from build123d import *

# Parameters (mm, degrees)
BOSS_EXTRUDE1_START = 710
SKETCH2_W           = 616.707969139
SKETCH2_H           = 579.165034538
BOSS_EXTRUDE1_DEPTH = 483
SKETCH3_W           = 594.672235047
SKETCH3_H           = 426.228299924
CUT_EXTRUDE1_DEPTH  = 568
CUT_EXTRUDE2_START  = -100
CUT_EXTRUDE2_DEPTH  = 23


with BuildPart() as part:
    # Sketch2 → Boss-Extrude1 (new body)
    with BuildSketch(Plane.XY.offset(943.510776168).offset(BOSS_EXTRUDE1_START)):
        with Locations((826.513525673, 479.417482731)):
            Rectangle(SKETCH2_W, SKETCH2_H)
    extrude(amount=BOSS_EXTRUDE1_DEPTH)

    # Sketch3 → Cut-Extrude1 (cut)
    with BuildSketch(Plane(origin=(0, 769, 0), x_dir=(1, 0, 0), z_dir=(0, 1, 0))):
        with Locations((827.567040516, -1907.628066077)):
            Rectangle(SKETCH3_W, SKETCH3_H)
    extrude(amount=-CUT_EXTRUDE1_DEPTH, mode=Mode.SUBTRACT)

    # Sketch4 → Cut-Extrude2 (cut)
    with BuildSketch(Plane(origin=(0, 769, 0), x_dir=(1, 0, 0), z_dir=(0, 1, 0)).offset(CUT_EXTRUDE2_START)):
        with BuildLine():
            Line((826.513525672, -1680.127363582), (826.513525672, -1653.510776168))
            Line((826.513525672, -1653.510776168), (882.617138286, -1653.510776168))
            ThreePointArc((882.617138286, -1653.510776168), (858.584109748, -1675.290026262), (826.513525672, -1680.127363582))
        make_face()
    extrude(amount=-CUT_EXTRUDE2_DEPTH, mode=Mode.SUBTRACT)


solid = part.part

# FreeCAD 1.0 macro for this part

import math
import FreeCAD as App
import Part
import Sketcher

V = App.Vector


def add_polygon(sketch, points):
    """Adds a closed chain of lines whose ends are joined by coincident constraints."""
    first, n = sketch.GeometryCount, len(points)
    for a, b in zip(points, points[1:] + points[:1]):
        sketch.addGeometry(Part.LineSegment(App.Vector(*a, 0), App.Vector(*b, 0)), False)
    for i in range(n):
        sketch.addConstraint(Sketcher.Constraint("Coincident", first + i, 2, first + (i + 1) % n, 1))

doc = App.newDocument("Part")
body = doc.addObject("PartDesign::Body", "Body")

sketch1 = body.newObject("Sketcher::SketchObject", "Sketch")
sketch1.AttachmentSupport = (doc.getObject("XY_Plane"), [""])
sketch1.MapMode = "FlatFace"
sketch1.AttachmentOffset = App.Placement(V(0, 0, 1653.510776), App.Rotation())
add_polygon(sketch1, [(518.159541, 769), (518.159541, 189.834965), (1134.86751, 189.834965), (1134.86751, 769)])
sketch1.addConstraint([
    Sketcher.Constraint("Vertical", 0),
    Sketcher.Constraint("Horizontal", 1),
    Sketcher.Constraint("Vertical", 2),
    Sketcher.Constraint("Horizontal", 3),
    Sketcher.Constraint("DistanceY", -1, 1, 2, 2, 769.0),
    Sketcher.Constraint("DistanceX", 1, 1, 1, 2, 616.707969),
    Sketcher.Constraint("DistanceY", 0, 2, 0, 1, 579.165035),
    Sketcher.Constraint("DistanceX", -1, 1, 0, 2, 518.159541),
])
pad1 = body.newObject("PartDesign::Pad", "Pad")
pad1.Profile = sketch1
pad1.Length = 483

sketch2 = body.newObject("Sketcher::SketchObject", "Sketch001")
sketch2.AttachmentSupport = (doc.getObject("XZ_Plane"), [""])
sketch2.MapMode = "FlatFace"
sketch2.AttachmentOffset = App.Placement(V(0, 0, -769), App.Rotation())
add_polygon(sketch2, [(530.230923, 1694.513916), (530.230923, 2120.742216), (1124.903158, 2120.742216), (1124.903158, 1694.513916)])
sketch2.addConstraint([
    Sketcher.Constraint("Vertical", 0),
    Sketcher.Constraint("Horizontal", 1),
    Sketcher.Constraint("Vertical", 2),
    Sketcher.Constraint("Horizontal", 3),
    Sketcher.Constraint("DistanceY", 0, 1, 0, 2, 426.2283),
    Sketcher.Constraint("DistanceX", 1, 1, 1, 2, 594.672235),
    Sketcher.Constraint("DistanceX", -1, 1, 1, 2, 1124.903158),
    Sketcher.Constraint("DistanceY", -1, 1, 0, 2, 2120.742216),
])
pocket1 = body.newObject("PartDesign::Pocket", "Pocket")
pocket1.Profile = sketch2
pocket1.Length = 568
pocket1.Reversed = True

sketch3 = body.newObject("Sketcher::SketchObject", "Sketch002")
sketch3.AttachmentSupport = (doc.getObject("XZ_Plane"), [""])
sketch3.MapMode = "FlatFace"
sketch3.AttachmentOffset = App.Placement(V(0, 0, -669), App.Rotation())
sketch3.addGeometry([
    Part.LineSegment(V(826.513526, 1653.510776, 0), V(826.513526, 1680.127364, 0)),
    Part.ArcOfCircle(Part.Circle(V(834.53933, 1624.607382, 0), V(0, 0, 1), 56.097076), math.radians(31.013423), math.radians(98.225528)),
    Part.LineSegment(V(882.617138, 1653.510776, 0), V(826.513526, 1653.510776, 0)),
], False)
sketch3.addConstraint([
    Sketcher.Constraint("Coincident", 0, 2, 1, 2),
    Sketcher.Constraint("Coincident", 1, 1, 2, 1),
    Sketcher.Constraint("Coincident", 2, 2, 0, 1),
    Sketcher.Constraint("Vertical", 0),
    Sketcher.Constraint("Horizontal", 2),
    Sketcher.Constraint("Radius", 1, 56.097076),
    Sketcher.Constraint("DistanceX", 2, 2, 2, 1, 56.103613),
    Sketcher.Constraint("DistanceY", 0, 1, 0, 2, 26.616587),
    Sketcher.Constraint("DistanceX", -1, 1, 1, 3, 834.53933),
    Sketcher.Constraint("DistanceY", -1, 1, 1, 3, 1624.607382),
])
pocket2 = body.newObject("PartDesign::Pocket", "Pocket001")
pocket2.Profile = sketch3
pocket2.Length = 23
pocket2.Reversed = True

doc.recompute()
